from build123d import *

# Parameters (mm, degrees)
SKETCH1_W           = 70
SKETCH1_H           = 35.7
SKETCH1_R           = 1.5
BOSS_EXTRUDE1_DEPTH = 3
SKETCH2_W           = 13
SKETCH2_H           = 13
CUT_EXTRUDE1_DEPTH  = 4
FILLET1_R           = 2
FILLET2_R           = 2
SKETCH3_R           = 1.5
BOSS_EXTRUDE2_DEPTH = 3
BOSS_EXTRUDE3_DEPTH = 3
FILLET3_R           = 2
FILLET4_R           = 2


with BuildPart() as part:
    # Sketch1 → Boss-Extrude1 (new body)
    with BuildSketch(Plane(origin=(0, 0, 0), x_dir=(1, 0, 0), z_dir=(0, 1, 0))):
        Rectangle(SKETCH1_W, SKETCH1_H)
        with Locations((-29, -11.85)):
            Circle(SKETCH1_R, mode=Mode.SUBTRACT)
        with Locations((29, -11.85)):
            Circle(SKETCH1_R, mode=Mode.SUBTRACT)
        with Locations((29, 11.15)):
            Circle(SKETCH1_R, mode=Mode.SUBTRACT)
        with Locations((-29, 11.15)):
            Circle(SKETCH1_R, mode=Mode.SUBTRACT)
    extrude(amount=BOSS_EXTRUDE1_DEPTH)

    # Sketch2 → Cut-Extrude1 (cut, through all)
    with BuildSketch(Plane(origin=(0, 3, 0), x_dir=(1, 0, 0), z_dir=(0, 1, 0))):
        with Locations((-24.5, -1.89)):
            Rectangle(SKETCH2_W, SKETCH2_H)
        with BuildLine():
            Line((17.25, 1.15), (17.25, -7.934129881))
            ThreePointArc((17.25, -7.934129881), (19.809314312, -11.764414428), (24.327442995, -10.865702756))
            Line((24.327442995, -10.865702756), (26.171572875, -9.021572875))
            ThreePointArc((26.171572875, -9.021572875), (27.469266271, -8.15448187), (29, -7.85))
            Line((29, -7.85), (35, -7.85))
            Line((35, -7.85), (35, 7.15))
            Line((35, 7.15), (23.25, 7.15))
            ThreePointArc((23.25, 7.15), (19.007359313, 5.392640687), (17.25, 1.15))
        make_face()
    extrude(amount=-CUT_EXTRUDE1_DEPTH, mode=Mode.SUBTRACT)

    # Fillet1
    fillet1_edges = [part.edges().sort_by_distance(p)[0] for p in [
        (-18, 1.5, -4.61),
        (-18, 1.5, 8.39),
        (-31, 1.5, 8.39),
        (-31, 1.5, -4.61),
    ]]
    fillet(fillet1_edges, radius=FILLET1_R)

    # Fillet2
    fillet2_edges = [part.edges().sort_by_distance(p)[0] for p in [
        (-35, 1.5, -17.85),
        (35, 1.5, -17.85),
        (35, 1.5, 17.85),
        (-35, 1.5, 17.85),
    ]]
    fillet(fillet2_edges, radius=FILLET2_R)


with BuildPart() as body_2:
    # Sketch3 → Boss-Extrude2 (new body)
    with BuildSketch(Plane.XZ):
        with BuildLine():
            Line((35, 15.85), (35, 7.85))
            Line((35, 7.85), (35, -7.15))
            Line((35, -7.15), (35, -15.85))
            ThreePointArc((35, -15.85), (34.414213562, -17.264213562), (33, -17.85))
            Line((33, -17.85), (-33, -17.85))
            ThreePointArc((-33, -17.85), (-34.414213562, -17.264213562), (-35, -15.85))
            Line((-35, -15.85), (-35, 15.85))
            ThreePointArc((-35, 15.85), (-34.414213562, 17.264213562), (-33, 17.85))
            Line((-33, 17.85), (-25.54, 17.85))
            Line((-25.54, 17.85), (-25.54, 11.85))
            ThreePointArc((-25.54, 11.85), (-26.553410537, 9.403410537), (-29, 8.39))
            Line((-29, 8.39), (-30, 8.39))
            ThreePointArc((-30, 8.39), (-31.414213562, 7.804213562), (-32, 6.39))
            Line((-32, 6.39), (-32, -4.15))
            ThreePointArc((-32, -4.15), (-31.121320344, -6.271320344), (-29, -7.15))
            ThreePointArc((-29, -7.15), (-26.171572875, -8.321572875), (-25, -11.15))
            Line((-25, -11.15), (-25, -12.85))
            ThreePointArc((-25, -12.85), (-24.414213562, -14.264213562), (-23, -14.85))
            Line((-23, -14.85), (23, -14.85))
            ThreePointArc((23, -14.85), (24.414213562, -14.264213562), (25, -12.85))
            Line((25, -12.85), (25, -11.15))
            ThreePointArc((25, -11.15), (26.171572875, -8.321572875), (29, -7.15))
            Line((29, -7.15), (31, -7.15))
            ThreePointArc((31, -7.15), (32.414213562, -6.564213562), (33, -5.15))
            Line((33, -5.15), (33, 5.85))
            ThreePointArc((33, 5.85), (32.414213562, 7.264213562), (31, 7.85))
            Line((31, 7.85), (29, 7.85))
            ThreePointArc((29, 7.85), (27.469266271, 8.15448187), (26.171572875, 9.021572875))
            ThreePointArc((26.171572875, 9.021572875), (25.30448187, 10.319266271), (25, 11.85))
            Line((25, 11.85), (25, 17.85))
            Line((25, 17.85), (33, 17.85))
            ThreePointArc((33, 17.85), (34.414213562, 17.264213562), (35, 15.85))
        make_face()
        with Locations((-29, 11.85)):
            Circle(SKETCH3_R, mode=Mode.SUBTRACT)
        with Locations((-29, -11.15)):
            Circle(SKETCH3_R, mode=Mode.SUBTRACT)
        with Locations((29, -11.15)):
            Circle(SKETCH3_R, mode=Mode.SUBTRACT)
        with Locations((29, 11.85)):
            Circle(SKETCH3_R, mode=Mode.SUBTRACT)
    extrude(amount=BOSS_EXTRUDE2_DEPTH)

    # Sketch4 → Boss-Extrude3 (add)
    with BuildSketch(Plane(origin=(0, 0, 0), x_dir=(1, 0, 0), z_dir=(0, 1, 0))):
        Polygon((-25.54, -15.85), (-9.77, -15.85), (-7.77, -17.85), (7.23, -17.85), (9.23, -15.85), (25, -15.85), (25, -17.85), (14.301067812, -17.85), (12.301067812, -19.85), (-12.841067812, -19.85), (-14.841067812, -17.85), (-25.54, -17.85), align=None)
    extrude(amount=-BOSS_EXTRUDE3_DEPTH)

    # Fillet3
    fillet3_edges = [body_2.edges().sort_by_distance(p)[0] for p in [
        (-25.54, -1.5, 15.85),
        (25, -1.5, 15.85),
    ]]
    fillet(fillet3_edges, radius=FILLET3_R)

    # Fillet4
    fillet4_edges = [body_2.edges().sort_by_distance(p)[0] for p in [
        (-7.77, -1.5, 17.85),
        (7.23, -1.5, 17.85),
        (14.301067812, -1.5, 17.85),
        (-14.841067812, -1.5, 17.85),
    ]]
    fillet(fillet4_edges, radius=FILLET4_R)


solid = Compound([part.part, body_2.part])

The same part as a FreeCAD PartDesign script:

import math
import FreeCAD as App
import Part
import Sketcher
from FreeCAD import Vector
Q = App.Units.Quantity


def edges_at(feature, points):
    """Names of the edges that pass closest to the given points."""
    edges = feature.Shape.Edges
    near = lambda p: min(range(len(edges)), key=lambda i: edges[i].distToShape(Part.Vertex(*p))[0])
    return sorted({f"Edge{near(p) + 1}" for p in points})

doc = App.newDocument("Part")
body = doc.addObject("PartDesign::Body", "Body")

sketch1 = doc.addObject("Sketcher::SketchObject", "Sketch")
body.addObject(sketch1)
sketch1.AttachmentSupport = (doc.XZ_Plane, [""])
sketch1.MapMode = "FlatFace"
sketch1.addGeometry([
    Part.LineSegment(Vector(-35, -17.85, 0), Vector(-35, 17.85, 0)),
    Part.LineSegment(Vector(-35, 17.85, 0), Vector(35, 17.85, 0)),
    Part.LineSegment(Vector(35, 17.85, 0), Vector(35, -17.85, 0)),
    Part.LineSegment(Vector(35, -17.85, 0), Vector(-35, -17.85, 0)),
    Part.Circle(Vector(-29, 11.85, 0), Vector(0, 0, 1), 1.5),
    Part.Circle(Vector(29, 11.85, 0), Vector(0, 0, 1), 1.5),
    Part.Circle(Vector(-29, -11.15, 0), Vector(0, 0, 1), 1.5),
    Part.Circle(Vector(29, -11.15, 0), Vector(0, 0, 1), 1.5),
], False)
sketch1.addConstraint([
    Sketcher.Constraint("Coincident", 0, 2, 1, 1),
    Sketcher.Constraint("Coincident", 1, 2, 2, 1),
    Sketcher.Constraint("Coincident", 2, 2, 3, 1),
    Sketcher.Constraint("Coincident", 3, 2, 0, 1),
    Sketcher.Constraint("Vertical", 0),
    Sketcher.Constraint("Horizontal", 1),
    Sketcher.Constraint("Vertical", 2),
    Sketcher.Constraint("Horizontal", 3),
    Sketcher.Constraint("Equal", 4, 5),
    Sketcher.Constraint("Equal", 5, 6),
    Sketcher.Constraint("Equal", 6, 7),
    Sketcher.Constraint("Symmetric", 0, 2, 2, 2, -1, 1),
    Sketcher.Constraint("Symmetric", 4, 3, 5, 3, -2),
    Sketcher.Constraint("Symmetric", 6, 3, 7, 3, -2),
    Sketcher.Constraint("Vertical", 4, 3, 6, 3),
    Sketcher.Constraint("Diameter", 4, 3.0),
    Sketcher.Constraint("DistanceX", 1, 1, 1, 2, 70.0),
    Sketcher.Constraint("DistanceY", 0, 1, 0, 2, 35.7),
    Sketcher.Constraint("DistanceX", 4, 3, -1, 1, 29.0),
    Sketcher.Constraint("DistanceY", 6, 3, 4, 3, 23.0),
    Sketcher.Constraint("DistanceY", 4, 3, 0, 2, 6.0),
])
pad1 = doc.addObject("PartDesign::Pad", "Pad")
body.addObject(pad1)
pad1.Profile = sketch1
pad1.Length = 3
pad1.Reversed = True

sketch2 = doc.addObject("Sketcher::SketchObject", "Sketch001")
body.addObject(sketch2)
sketch2.AttachmentSupport = (doc.XZ_Plane, [""])
sketch2.MapMode = "FlatFace"
sketch2.AttachmentOffset = App.Placement(Vector(0, 0, -3), App.Rotation())
sketch2.addGeometry([
    Part.LineSegment(Vector(-31, -4.61, 0), Vector(-31, 8.39, 0)),
    Part.LineSegment(Vector(-31, 8.39, 0), Vector(-18, 8.39, 0)),
    Part.LineSegment(Vector(-18, 8.39, 0), Vector(-18, -4.61, 0)),
    Part.LineSegment(Vector(-18, -4.61, 0), Vector(-31, -4.61, 0)),
    Part.LineSegment(Vector(17.25, -1.15, 0), Vector(17.25, 7.93413, 0)),
    Part.ArcOfCircle(Part.Circle(Vector(21.39587, 7.93413, 0), Vector(0, 0, 1), 4.14587), math.radians(45), math.radians(180)),
    Part.LineSegment(Vector(24.327443, 10.865703, 0), Vector(26.171573, 9.021573, 0)),
    Part.ArcOfCircle(Part.Circle(Vector(29, 11.85, 0), Vector(0, 0, 1), 4), math.radians(-135), math.radians(-90)),
    Part.LineSegment(Vector(29, 7.85, 0), Vector(35, 7.85, 0)),
    Part.LineSegment(Vector(35, 7.85, 0), Vector(35, -7.15, 0)),
    Part.LineSegment(Vector(35, -7.15, 0), Vector(23.25, -7.15, 0)),
    Part.ArcOfCircle(Part.Circle(Vector(23.25, -1.15, 0), Vector(0, 0, 1), 6), math.radians(180), math.radians(270)),
], False)
sketch2.addConstraint([
    Sketcher.Constraint("Coincident", 0, 2, 1, 1),
    Sketcher.Constraint("Coincident", 1, 2, 2, 1),
    Sketcher.Constraint("Coincident", 2, 2, 3, 1),
    Sketcher.Constraint("Coincident", 3, 2, 0, 1),
    Sketcher.Constraint("Tangent", 4, 2, 5, 2),
    Sketcher.Constraint("Tangent", 5, 1, 6, 1),
    Sketcher.Constraint("Tangent", 6, 2, 7, 1),
    Sketcher.Constraint("Tangent", 7, 2, 8, 1),
    Sketcher.Constraint("Coincident", 8, 2, 9, 1),
    Sketcher.Constraint("Coincident", 9, 2, 10, 1),
    Sketcher.Constraint("Tangent", 10, 2, 11, 2),
    Sketcher.Constraint("Tangent", 11, 1, 4, 1),
    Sketcher.Constraint("Vertical", 0),
    Sketcher.Constraint("Horizontal", 1),
    Sketcher.Constraint("Vertical", 2),
    Sketcher.Constraint("Horizontal", 3),
    Sketcher.Constraint("Vertical", 4),
    Sketcher.Constraint("Horizontal", 8),
    Sketcher.Constraint("Vertical", 9),
    Sketcher.Constraint("Horizontal", 10),
    Sketcher.Constraint("Equal", 3, 0),
    Sketcher.Constraint("Radius", 7, 4.0),
    Sketcher.Constraint("Radius", 11, 6.0),
    Sketcher.Constraint("DistanceX", 1, 1, 1, 2, 13.0),
    Sketcher.Constraint("DistanceX", 8, 1, 8, 2, 6.0),
    Sketcher.Constraint("DistanceY", 9, 2, 9, 1, 15.0),
    Sketcher.Constraint("Angle", 6, Q("-45 deg")),
    Sketcher.Constraint("DistanceX", -1, 1, 7, 3, 29.0),
    Sketcher.Constraint("DistanceX", 0, 2, -1, 1, 31.0),
    Sketcher.Constraint("DistanceX", 10, 2, 10, 1, 11.75),
    Sketcher.Constraint("DistanceY", -1, 1, 7, 3, 11.85),
    Sketcher.Constraint("DistanceY", -1, 1, 0, 2, 8.39),
    Sketcher.Constraint("Radius", 5, 4.14587),
])
pocket1 = doc.addObject("PartDesign::Pocket", "Pocket")
body.addObject(pocket1)
pocket1.Profile = sketch2
pocket1.Type = "ThroughAll"
pocket1.Reversed = True
doc.recompute()

fillet = doc.addObject("PartDesign::Fillet", "Fillet")
body.addObject(fillet)
fillet.Base = (pocket1, edges_at(pocket1, [
    (-18, 1.5, -4.61),
    (-18, 1.5, 8.39),
    (-31, 1.5, 8.39),
    (-31, 1.5, -4.61),
]))
fillet.Radius = 2
doc.recompute()

fillet2 = doc.addObject("PartDesign::Fillet", "Fillet001")
body.addObject(fillet2)
fillet2.Base = (fillet, edges_at(fillet, [
    (-35, 1.5, -17.85),
    (35, 1.5, -17.85),
    (35, 1.5, 17.85),
    (-35, 1.5, 17.85),
]))
fillet2.Radius = 2
body2 = doc.addObject("PartDesign::Body", "Body001")

sketch3 = doc.addObject("Sketcher::SketchObject", "Sketch002")
body2.addObject(sketch3)
sketch3.AttachmentSupport = (doc.getObject("XZ_Plane001"), [""])
sketch3.MapMode = "FlatFace"
sketch3.addGeometry([
    Part.LineSegment(Vector(35, -15.85, 0), Vector(35, 15.85, 0)),
    Part.ArcOfCircle(Part.Circle(Vector(33, 15.85, 0), Vector(0, 0, 1), 2), math.radians(0), math.radians(90)),
    Part.LineSegment(Vector(33, 17.85, 0), Vector(25, 17.85, 0)),
    Part.LineSegment(Vector(25, 17.85, 0), Vector(25, 11.85, 0)),
    Part.ArcOfCircle(Part.Circle(Vector(29, 11.85, 0), Vector(0, 0, 1), 4), math.radians(-180), math.radians(-135)),
    Part.ArcOfCircle(Part.Circle(Vector(29, 11.85, 0), Vector(0, 0, 1), 4), math.radians(-135), math.radians(-90)),
    Part.LineSegment(Vector(29, 7.85, 0), Vector(31, 7.85, 0)),
    Part.ArcOfCircle(Part.Circle(Vector(31, 5.85, 0), Vector(0, 0, 1), 2), math.radians(0), math.radians(90)),
    Part.LineSegment(Vector(33, 5.85, 0), Vector(33, -5.15, 0)),
    Part.ArcOfCircle(Part.Circle(Vector(31, -5.15, 0), Vector(0, 0, 1), 2), math.radians(-90), math.radians(0)),
    Part.LineSegment(Vector(31, -7.15, 0), Vector(29, -7.15, 0)),
    Part.ArcOfCircle(Part.Circle(Vector(29, -11.15, 0), Vector(0, 0, 1), 4), math.radians(90), math.radians(180)),
    Part.LineSegment(Vector(25, -11.15, 0), Vector(25, -12.85, 0)),
    Part.ArcOfCircle(Part.Circle(Vector(23, -12.85, 0), Vector(0, 0, 1), 2), math.radians(-90), math.radians(0)),
    Part.LineSegment(Vector(23, -14.85, 0), Vector(-23, -14.85, 0)),
    Part.ArcOfCircle(Part.Circle(Vector(-23, -12.85, 0), Vector(0, 0, 1), 2), math.radians(-180), math.radians(-90)),
    Part.LineSegment(Vector(-25, -12.85, 0), Vector(-25, -11.15, 0)),
    Part.ArcOfCircle(Part.Circle(Vector(-29, -11.15, 0), Vector(0, 0, 1), 4), math.radians(0), math.radians(90)),
    Part.ArcOfCircle(Part.Circle(Vector(-29, -4.15, 0), Vector(0, 0, 1), 3), math.radians(180), math.radians(270)),
    Part.LineSegment(Vector(-32, -4.15, 0), Vector(-32, 6.39, 0)),
    Part.ArcOfCircle(Part.Circle(Vector(-30, 6.39, 0), Vector(0, 0, 1), 2), math.radians(90), math.radians(180)),
    Part.LineSegment(Vector(-30, 8.39, 0), Vector(-29, 8.39, 0)),
    Part.ArcOfCircle(Part.Circle(Vector(-29, 11.85, 0), Vector(0, 0, 1), 3.46), math.radians(-90), math.radians(0)),
    Part.LineSegment(Vector(-25.54, 11.85, 0), Vector(-25.54, 17.85, 0)),
    Part.LineSegment(Vector(-25.54, 17.85, 0), Vector(-33, 17.85, 0)),
    Part.ArcOfCircle(Part.Circle(Vector(-33, 15.85, 0), Vector(0, 0, 1), 2), math.radians(90), math.radians(180)),
    Part.LineSegment(Vector(-35, 15.85, 0), Vector(-35, -15.85, 0)),
    Part.ArcOfCircle(Part.Circle(Vector(-33, -15.85, 0), Vector(0, 0, 1), 2), math.radians(-180), math.radians(-90)),
    Part.LineSegment(Vector(-33, -17.85, 0), Vector(33, -17.85, 0)),
    Part.ArcOfCircle(Part.Circle(Vector(33, -15.85, 0), Vector(0, 0, 1), 2), math.radians(-90), math.radians(0)),
    Part.Circle(Vector(29, -11.15, 0), Vector(0, 0, 1), 1.5),
    Part.Circle(Vector(-29, -11.15, 0), Vector(0, 0, 1), 1.5),
    Part.Circle(Vector(29, 11.85, 0), Vector(0, 0, 1), 1.5),
    Part.Circle(Vector(-29, 11.85, 0), Vector(0, 0, 1), 1.5),
], False)
sketch3.addConstraint([
    Sketcher.Constraint("Tangent", 0, 2, 1, 1),
    Sketcher.Constraint("Tangent", 1, 2, 2, 1),
    Sketcher.Constraint("Coincident", 2, 2, 3, 1),
    Sketcher.Constraint("Tangent", 3, 2, 4, 1),
    Sketcher.Constraint("Tangent", 4, 2, 5, 1),
    Sketcher.Constraint("Tangent", 5, 2, 6, 1),
    Sketcher.Constraint("Tangent", 6, 2, 7, 2),
    Sketcher.Constraint("Tangent", 7, 1, 8, 1),
    Sketcher.Constraint("Tangent", 8, 2, 9, 2),
    Sketcher.Constraint("Tangent", 9, 1, 10, 1),
    Sketcher.Constraint("Tangent", 10, 2, 11, 1),
    Sketcher.Constraint("Tangent", 11, 2, 12, 1),
    Sketcher.Constraint("Tangent", 12, 2, 13, 2),
    Sketcher.Constraint("Tangent", 13, 1, 14, 1),
    Sketcher.Constraint("Tangent", 14, 2, 15, 2),
    Sketcher.Constraint("Tangent", 15, 1, 16, 1),
    Sketcher.Constraint("Tangent", 16, 2, 17, 1),
    Sketcher.Constraint("Tangent", 17, 2, 18, 2),
    Sketcher.Constraint("Tangent", 18, 1, 19, 1),
    Sketcher.Constraint("Tangent", 19, 2, 20, 2),
    Sketcher.Constraint("Tangent", 20, 1, 21, 1),
    Sketcher.Constraint("Tangent", 21, 2, 22, 1),
    Sketcher.Constraint("Tangent", 22, 2, 23, 1),
    Sketcher.Constraint("Coincident", 23, 2, 24, 1),
    Sketcher.Constraint("Tangent", 24, 2, 25, 1),
    Sketcher.Constraint("Tangent", 25, 2, 26, 1),
    Sketcher.Constraint("Tangent", 26, 2, 27, 1),
    Sketcher.Constraint("Tangent", 27, 2, 28, 1),
    Sketcher.Constraint("Tangent", 28, 2, 29, 1),
    Sketcher.Constraint("Tangent", 29, 2, 0, 1),
    Sketcher.Constraint("Vertical", 0),
    Sketcher.Constraint("Horizontal", 2),
    Sketcher.Constraint("Vertical", 3),
    Sketcher.Constraint("Horizontal", 6),
    Sketcher.Constraint("Vertical", 8),
    Sketcher.Constraint("Horizontal", 10),
    Sketcher.Constraint("Vertical", 12),
    Sketcher.Constraint("Horizontal", 14),
    Sketcher.Constraint("Vertical", 16),
    Sketcher.Constraint("Vertical", 19),
    Sketcher.Constraint("Horizontal", 21),
    Sketcher.Constraint("Vertical", 23),
    Sketcher.Constraint("Horizontal", 24),
    Sketcher.Constraint("Vertical", 26),
    Sketcher.Constraint("Horizontal", 28),
    Sketcher.Constraint("Coincident", 30, 3, 11, 3),
    Sketcher.Constraint("Coincident", 31, 3, 17, 3),
    Sketcher.Constraint("Coincident", 32, 3, 4, 3),
    Sketcher.Constraint("Coincident", 33, 3, 22, 3),
    Sketcher.Constraint("Equal", 4, 5),
    Sketcher.Constraint("Equal", 1, 7),
    Sketcher.Constraint("Equal", 7, 9),
    Sketcher.Constraint("Equal", 5, 11),
    Sketcher.Constraint("Equal", 9, 13),
    Sketcher.Constraint("Equal", 13, 15),
    Sketcher.Constraint("Equal", 11, 17),
    Sketcher.Constraint("Equal", 15, 20),
    Sketcher.Constraint("Equal", 20, 25),
    Sketcher.Constraint("Equal", 25, 27),
    Sketcher.Constraint("Equal", 27, 29),
    Sketcher.Constraint("Equal", 30, 31),
    Sketcher.Constraint("Equal", 31, 32),
    Sketcher.Constraint("Equal", 32, 33),
    Sketcher.Constraint("Symmetric", 1, 3, 27, 3, -1, 1),
    Sketcher.Constraint("Symmetric", 11, 3, 17, 3, -2),
    Sketcher.Constraint("Symmetric", 4, 3, 22, 3, -2),
    Sketcher.Constraint("Horizontal", 1, 3, 25, 3),
    Sketcher.Constraint("Vertical", 5, 3, 11, 3),
    Sketcher.Constraint("Vertical", 17, 3, 18, 3),
    Sketcher.Constraint("Vertical", 1, 2, 7, 1),
    Sketcher.Constraint("Diameter", 30, 3.0),
    Sketcher.Constraint("Radius", 1, 2.0),
    Sketcher.Constraint("Radius", 4, 4.0),
    Sketcher.Constraint("Radius", 18, 3.0),
    Sketcher.Constraint("DistanceX", 2, 2, 2, 1, 8.0),
    Sketcher.Constraint("DistanceX", 14, 2, 14, 1, 46.0),
    Sketcher.Constraint("DistanceY", 3, 2, 3, 1, 6.0),
    Sketcher.Constraint("DistanceY", 8, 2, 8, 1, 11.0),
    Sketcher.Constraint("Radius", 22, 3.46),
    Sketcher.Constraint("DistanceY", 0, 1, 0, 2, 31.7),
    Sketcher.Constraint("DistanceY", 12, 2, 12, 1, 1.7),
    Sketcher.Constraint("DistanceX", -1, 1, 4, 2, 26.171573),
])
pad2 = doc.addObject("PartDesign::Pad", "Pad001")
body2.addObject(pad2)
pad2.Profile = sketch3
pad2.Length = 3

sketch4 = doc.addObject("Sketcher::SketchObject", "Sketch003")
body2.addObject(sketch4)
sketch4.AttachmentSupport = (doc.getObject("XZ_Plane001"), [""])
sketch4.MapMode = "FlatFace"
sketch4.addGeometry([
    Part.LineSegment(Vector(-9.77, 15.85, 0), Vector(-25.54, 15.85, 0)),
    Part.LineSegment(Vector(-25.54, 15.85, 0), Vector(-25.54, 17.85, 0)),
    Part.LineSegment(Vector(-25.54, 17.85, 0), Vector(-14.841068, 17.85, 0)),
    Part.LineSegment(Vector(-14.841068, 17.85, 0), Vector(-12.841068, 19.85, 0)),
    Part.LineSegment(Vector(-12.841068, 19.85, 0), Vector(12.301068, 19.85, 0)),
    Part.LineSegment(Vector(12.301068, 19.85, 0), Vector(14.301068, 17.85, 0)),
    Part.LineSegment(Vector(14.301068, 17.85, 0), Vector(25, 17.85, 0)),
    Part.LineSegment(Vector(25, 17.85, 0), Vector(25, 15.85, 0)),
    Part.LineSegment(Vector(25, 15.85, 0), Vector(9.23, 15.85, 0)),
    Part.LineSegment(Vector(9.23, 15.85, 0), Vector(7.23, 17.85, 0)),
    Part.LineSegment(Vector(7.23, 17.85, 0), Vector(-7.77, 17.85, 0)),
    Part.LineSegment(Vector(-7.77, 17.85, 0), Vector(-9.77, 15.85, 0)),
], False)
sketch4.addConstraint([
    Sketcher.Constraint("Coincident", 0, 2, 1, 1),
    Sketcher.Constraint("Coincident", 1, 2, 2, 1),
    Sketcher.Constraint("Coincident", 2, 2, 3, 1),
    Sketcher.Constraint("Coincident", 3, 2, 4, 1),
    Sketcher.Constraint("Coincident", 4, 2, 5, 1),
    Sketcher.Constraint("Coincident", 5, 2, 6, 1),
    Sketcher.Constraint("Coincident", 6, 2, 7, 1),
    Sketcher.Constraint("Coincident", 7, 2, 8, 1),
    Sketcher.Constraint("Coincident", 8, 2, 9, 1),
    Sketcher.Constraint("Coincident", 9, 2, 10, 1),
    Sketcher.Constraint("Coincident", 10, 2, 11, 1),
    Sketcher.Constraint("Coincident", 11, 2, 0, 1),
    Sketcher.Constraint("Horizontal", 0),
    Sketcher.Constraint("Vertical", 1),
    Sketcher.Constraint("Horizontal", 2),
    Sketcher.Constraint("Horizontal", 4),
    Sketcher.Constraint("Horizontal", 6),
    Sketcher.Constraint("Vertical", 7),
    Sketcher.Constraint("Horizontal", 8),
    Sketcher.Constraint("Horizontal", 10),
    Sketcher.Constraint("Perpendicular", 3, 5),
    Sketcher.Constraint("Parallel", 5, 9),
    Sketcher.Constraint("Perpendicular", 9, 11),
    Sketcher.Constraint("Horizontal", 2, 2, 5, 2),
    Sketcher.Constraint("Horizontal", 0, 2, 7, 2),
    Sketcher.Constraint("Horizontal", 6, 2, 9, 2),
    Sketcher.Constraint("Equal", 2, 6),
    Sketcher.Constraint("Equal", 0, 8),
    Sketcher.Constraint("Equal", 3, 5),
    Sketcher.Constraint("Equal", 5, 9),
    Sketcher.Constraint("DistanceX", 10, 2, 10, 1, 15.0),
    Sketcher.Constraint("DistanceY", 1, 1, 1, 2, 2.0),
    Sketcher.Constraint("DistanceX", -1, 1, 6, 2, 25.0),
    Sketcher.Constraint("DistanceX", 0, 2, 0, 1, 15.77),
    Sketcher.Constraint("DistanceY", -1, 1, 0, 2, 15.85),
    Sketcher.Constraint("DistanceX", 2, 1, 2, 2, 10.698932),
])
pad3 = doc.addObject("PartDesign::Pad", "Pad002")
body2.addObject(pad3)
pad3.Profile = sketch4
pad3.Length = 3
doc.recompute()

fillet3 = doc.addObject("PartDesign::Fillet", "Fillet002")
body2.addObject(fillet3)
fillet3.Base = (pad3, edges_at(pad3, [(-25.54, -1.5, 15.85), (25, -1.5, 15.85)]))
fillet3.Radius = 2
doc.recompute()

fillet4 = doc.addObject("PartDesign::Fillet", "Fillet003")
body2.addObject(fillet4)
fillet4.Base = (fillet3, edges_at(fillet3, [
    (-7.77, -1.5, 17.85),
    (7.23, -1.5, 17.85),
    (14.301, -1.5, 17.85),
    (-14.841, -1.5, 17.85),
]))
fillet4.Radius = 2

doc.recompute()
